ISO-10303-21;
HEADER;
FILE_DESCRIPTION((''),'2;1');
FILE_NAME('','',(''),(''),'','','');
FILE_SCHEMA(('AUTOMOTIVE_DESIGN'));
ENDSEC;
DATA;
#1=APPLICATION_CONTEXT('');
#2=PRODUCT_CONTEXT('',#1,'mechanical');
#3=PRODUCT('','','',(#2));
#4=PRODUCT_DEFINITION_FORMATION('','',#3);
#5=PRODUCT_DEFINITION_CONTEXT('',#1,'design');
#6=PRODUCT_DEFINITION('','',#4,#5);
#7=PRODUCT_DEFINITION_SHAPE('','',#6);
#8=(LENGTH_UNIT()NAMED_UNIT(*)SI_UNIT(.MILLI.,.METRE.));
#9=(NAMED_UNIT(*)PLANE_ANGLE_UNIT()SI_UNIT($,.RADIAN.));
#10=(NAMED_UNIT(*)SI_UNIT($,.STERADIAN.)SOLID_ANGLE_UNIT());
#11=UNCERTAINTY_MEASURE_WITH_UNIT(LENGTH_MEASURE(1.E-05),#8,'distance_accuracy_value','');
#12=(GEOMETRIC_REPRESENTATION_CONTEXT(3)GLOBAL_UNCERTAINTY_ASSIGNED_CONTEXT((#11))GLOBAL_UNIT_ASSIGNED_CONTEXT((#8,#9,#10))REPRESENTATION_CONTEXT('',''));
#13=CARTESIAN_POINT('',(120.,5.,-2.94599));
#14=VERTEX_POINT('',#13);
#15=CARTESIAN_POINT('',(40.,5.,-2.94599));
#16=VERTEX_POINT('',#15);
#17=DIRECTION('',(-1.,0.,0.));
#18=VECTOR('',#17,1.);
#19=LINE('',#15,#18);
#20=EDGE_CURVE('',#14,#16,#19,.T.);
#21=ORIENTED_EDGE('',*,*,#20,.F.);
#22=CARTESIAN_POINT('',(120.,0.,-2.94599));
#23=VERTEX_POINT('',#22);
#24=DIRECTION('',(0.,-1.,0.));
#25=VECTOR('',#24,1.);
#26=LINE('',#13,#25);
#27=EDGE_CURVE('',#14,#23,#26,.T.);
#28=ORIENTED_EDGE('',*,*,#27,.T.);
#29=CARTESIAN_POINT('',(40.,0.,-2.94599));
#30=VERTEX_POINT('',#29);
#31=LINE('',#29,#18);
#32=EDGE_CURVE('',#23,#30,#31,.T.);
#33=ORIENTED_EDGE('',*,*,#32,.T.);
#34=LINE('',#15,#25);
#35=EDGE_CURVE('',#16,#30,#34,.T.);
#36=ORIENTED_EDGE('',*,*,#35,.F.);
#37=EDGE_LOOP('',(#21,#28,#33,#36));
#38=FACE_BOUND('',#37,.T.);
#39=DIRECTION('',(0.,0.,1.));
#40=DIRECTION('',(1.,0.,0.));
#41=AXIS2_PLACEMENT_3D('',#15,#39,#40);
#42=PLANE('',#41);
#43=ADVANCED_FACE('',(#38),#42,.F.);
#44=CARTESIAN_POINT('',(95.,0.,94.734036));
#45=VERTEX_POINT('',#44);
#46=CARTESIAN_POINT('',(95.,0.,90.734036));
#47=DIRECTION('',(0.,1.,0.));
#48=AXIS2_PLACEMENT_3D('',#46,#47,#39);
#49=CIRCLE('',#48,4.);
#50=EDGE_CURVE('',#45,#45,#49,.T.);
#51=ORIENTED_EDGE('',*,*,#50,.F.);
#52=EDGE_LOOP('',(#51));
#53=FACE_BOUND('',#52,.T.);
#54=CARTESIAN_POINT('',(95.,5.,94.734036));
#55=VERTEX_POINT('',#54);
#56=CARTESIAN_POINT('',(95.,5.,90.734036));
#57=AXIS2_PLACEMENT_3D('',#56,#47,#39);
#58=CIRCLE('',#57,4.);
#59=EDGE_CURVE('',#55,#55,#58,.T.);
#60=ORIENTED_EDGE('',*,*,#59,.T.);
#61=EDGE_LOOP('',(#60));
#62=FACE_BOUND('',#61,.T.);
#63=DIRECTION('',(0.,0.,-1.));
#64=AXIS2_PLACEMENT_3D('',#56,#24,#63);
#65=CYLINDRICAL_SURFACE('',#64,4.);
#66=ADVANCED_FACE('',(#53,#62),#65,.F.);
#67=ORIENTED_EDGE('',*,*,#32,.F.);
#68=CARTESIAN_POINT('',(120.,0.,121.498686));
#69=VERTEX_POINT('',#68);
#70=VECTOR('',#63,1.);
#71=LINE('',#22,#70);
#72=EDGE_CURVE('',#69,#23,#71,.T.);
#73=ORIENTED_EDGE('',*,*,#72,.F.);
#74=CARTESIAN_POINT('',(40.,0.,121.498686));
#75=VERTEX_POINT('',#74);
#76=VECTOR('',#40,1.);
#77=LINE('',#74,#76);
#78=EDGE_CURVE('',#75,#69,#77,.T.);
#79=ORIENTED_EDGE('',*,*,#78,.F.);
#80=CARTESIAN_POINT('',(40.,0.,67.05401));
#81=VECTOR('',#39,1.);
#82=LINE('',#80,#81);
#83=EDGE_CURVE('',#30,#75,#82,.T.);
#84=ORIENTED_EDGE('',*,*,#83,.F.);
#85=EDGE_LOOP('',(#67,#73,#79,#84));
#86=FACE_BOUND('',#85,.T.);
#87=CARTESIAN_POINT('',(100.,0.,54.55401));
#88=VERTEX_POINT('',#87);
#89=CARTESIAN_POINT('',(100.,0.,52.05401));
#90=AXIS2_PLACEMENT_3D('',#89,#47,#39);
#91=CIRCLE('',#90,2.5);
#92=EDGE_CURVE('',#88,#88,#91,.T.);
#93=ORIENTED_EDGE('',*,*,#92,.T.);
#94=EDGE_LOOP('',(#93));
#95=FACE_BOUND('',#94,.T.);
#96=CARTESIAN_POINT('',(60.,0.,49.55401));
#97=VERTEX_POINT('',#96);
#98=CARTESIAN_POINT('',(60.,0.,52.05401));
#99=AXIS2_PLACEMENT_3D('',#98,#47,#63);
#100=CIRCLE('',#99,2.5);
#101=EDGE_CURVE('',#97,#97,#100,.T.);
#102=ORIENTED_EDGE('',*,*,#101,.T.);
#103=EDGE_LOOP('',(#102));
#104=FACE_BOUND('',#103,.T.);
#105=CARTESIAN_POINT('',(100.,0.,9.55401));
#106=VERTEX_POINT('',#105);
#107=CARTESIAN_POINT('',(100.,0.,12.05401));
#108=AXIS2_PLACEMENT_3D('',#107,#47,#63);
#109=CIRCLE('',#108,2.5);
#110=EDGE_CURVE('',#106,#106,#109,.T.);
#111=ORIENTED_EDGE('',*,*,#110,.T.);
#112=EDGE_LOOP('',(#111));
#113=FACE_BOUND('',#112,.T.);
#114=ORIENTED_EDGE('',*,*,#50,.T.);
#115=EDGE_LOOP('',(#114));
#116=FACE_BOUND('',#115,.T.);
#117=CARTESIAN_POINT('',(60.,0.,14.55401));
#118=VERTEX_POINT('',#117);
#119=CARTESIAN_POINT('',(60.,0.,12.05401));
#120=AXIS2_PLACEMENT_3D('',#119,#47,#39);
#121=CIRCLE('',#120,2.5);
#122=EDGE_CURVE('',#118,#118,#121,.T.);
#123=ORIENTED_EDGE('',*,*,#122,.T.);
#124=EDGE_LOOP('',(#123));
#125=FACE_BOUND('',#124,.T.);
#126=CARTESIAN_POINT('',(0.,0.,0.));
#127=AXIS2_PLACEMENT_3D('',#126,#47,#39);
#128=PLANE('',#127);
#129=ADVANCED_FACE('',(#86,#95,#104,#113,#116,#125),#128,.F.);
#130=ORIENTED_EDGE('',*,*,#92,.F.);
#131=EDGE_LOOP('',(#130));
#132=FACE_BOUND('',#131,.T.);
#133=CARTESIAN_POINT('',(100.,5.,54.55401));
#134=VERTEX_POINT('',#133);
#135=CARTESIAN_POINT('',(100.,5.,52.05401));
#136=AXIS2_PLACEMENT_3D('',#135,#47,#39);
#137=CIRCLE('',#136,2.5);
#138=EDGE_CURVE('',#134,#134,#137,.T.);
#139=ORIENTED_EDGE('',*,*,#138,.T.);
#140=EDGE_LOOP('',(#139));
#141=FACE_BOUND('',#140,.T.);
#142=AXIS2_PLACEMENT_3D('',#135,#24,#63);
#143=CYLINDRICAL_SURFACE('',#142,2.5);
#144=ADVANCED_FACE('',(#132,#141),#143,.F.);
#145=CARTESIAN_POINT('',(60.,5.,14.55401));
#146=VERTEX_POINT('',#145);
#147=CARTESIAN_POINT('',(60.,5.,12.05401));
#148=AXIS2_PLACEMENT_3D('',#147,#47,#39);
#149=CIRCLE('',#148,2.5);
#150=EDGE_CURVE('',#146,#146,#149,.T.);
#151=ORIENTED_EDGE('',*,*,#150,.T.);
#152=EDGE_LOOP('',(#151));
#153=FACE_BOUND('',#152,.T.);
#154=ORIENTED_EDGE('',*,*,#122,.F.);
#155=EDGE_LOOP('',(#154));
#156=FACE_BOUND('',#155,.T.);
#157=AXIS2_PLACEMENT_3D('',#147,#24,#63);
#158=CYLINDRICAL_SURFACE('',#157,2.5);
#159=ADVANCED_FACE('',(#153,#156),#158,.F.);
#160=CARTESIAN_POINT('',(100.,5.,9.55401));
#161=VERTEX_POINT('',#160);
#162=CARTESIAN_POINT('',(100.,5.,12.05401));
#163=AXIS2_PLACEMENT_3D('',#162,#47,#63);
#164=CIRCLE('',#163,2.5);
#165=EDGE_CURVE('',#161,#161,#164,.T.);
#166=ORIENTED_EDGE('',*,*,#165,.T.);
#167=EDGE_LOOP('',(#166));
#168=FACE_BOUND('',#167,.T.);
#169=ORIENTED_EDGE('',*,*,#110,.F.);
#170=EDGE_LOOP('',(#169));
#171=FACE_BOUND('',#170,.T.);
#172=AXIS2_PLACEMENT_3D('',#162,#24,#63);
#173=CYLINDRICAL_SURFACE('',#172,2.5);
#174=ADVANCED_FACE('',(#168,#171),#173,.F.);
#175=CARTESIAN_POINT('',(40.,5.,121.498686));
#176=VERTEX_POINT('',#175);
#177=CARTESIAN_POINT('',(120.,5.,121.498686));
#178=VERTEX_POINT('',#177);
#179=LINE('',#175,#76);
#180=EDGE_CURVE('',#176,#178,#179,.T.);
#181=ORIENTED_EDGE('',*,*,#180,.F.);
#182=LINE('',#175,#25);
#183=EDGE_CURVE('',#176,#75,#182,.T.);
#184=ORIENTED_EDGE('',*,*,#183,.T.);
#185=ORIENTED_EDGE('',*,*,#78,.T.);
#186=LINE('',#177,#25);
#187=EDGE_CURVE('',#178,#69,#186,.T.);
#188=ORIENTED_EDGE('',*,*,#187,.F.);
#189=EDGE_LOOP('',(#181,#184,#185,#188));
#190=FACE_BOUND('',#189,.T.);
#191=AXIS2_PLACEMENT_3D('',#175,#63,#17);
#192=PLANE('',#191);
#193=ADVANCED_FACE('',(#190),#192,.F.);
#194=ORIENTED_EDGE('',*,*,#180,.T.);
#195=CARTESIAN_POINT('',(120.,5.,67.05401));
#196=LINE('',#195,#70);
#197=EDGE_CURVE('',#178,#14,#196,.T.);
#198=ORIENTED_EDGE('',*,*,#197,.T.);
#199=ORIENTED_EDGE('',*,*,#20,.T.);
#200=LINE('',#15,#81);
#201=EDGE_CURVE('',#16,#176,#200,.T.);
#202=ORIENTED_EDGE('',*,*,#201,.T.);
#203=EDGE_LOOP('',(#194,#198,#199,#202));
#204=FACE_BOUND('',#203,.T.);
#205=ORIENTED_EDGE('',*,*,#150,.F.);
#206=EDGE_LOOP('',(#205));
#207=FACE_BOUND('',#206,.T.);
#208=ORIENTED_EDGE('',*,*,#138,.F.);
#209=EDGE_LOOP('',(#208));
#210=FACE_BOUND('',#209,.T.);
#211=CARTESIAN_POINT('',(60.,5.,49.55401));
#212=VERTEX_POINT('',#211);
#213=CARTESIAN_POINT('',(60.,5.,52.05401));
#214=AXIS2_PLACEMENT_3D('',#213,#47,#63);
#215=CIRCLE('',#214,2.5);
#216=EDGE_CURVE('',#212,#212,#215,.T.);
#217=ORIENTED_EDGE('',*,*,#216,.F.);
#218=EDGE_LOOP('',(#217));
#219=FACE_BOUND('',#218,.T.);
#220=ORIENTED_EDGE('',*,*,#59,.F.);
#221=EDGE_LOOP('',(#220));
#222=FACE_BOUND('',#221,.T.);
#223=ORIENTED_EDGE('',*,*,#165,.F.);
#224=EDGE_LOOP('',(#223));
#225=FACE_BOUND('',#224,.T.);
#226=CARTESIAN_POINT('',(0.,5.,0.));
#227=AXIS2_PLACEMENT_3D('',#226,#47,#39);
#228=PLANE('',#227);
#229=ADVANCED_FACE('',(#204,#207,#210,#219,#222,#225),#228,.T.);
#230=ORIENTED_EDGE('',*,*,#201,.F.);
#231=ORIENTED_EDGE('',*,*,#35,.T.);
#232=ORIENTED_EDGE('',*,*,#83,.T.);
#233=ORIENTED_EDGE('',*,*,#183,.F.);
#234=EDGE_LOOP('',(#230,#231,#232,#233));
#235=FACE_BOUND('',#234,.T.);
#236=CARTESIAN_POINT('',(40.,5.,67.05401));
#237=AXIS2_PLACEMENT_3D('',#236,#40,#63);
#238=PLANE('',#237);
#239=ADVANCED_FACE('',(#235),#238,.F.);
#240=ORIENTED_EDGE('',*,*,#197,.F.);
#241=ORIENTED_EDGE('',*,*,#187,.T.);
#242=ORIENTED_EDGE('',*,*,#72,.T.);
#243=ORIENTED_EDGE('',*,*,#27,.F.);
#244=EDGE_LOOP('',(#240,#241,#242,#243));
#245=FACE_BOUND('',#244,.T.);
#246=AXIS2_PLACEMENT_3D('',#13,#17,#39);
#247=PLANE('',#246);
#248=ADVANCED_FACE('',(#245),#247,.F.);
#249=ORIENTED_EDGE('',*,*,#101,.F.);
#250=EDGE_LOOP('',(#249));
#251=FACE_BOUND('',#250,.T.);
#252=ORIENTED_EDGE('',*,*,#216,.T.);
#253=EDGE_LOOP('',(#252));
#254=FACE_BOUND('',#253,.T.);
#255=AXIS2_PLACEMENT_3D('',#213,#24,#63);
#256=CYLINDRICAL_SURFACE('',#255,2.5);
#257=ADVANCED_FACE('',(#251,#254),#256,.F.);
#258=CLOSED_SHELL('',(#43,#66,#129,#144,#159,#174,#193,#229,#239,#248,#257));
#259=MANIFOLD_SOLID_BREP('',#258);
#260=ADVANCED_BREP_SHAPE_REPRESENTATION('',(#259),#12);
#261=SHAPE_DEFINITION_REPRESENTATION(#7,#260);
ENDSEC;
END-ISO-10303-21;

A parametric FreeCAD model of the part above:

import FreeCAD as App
import Part
import Sketcher

V = App.Vector
Q = App.Units.Quantity


def add_polygon(sketch, points):
    """Adds a closed chain of lines whose ends are joined by coincident constraints."""
    first, n = sketch.GeometryCount, len(points)
    for a, b in zip(points, points[1:] + points[:1]):
        sketch.addGeometry(Part.LineSegment(App.Vector(*a, 0), App.Vector(*b, 0)), False)
    for i in range(n):
        sketch.addConstraint(Sketcher.Constraint("Coincident", first + i, 2, first + (i + 1) % n, 1))

doc = App.newDocument("Part")
params = doc.addObject("Spreadsheet::Sheet", "Params")
for row, (alias, value) in enumerate([
    ("sketch1_diameter", "8 mm"),
    ("sketch1_diameter2", "5 mm"),
    ("sketch1_width", "80 mm"),
    ("pad1_length", "5 mm"),
], start=1):
    params.set(f"A{row}", alias)
    params.set(f"B{row}", "=" + value)
    params.setAlias(f"B{row}", alias)

body = doc.addObject("PartDesign::Body", "Body")

sketch1 = body.newObject("Sketcher::SketchObject", "Sketch")
sketch1.AttachmentSupport = (doc.getObject("XZ_Plane"), [""])
sketch1.MapMode = "FlatFace"
add_polygon(sketch1, [(120, -2.9), (40, -2.9), (40, 121.5), (120, 121.5)])
sketch1.addGeometry(Part.Circle(V(95, 90.7, 0), V(0, 0, 1), 4), False)
sketch1.addGeometry(Part.Circle(V(100, 52.1, 0), V(0, 0, 1), 2.5), False)
sketch1.addGeometry(Part.Circle(V(100, 12.1, 0), V(0, 0, 1), 2.5), False)
sketch1.addGeometry(Part.Circle(V(60, 52.1, 0), V(0, 0, 1), 2.5), False)
sketch1.addGeometry(Part.Circle(V(60, 12.1, 0), V(0, 0, 1), 2.5), False)
sketch1.addConstraint(Sketcher.Constraint("Horizontal", 0))
sketch1.addConstraint(Sketcher.Constraint("Vertical", 1))
sketch1.addConstraint(Sketcher.Constraint("Horizontal", 2))
sketch1.addConstraint(Sketcher.Constraint("Vertical", 3))
sketch1.addConstraint(Sketcher.Constraint("Equal", 5, 6))
sketch1.addConstraint(Sketcher.Constraint("Equal", 6, 7))
sketch1.addConstraint(Sketcher.Constraint("Equal", 7, 8))
sketch1.addConstraint(Sketcher.Constraint("Horizontal", 5, 3, 7, 3))
sketch1.addConstraint(Sketcher.Constraint("Horizontal", 6, 3, 8, 3))
sketch1.addConstraint(Sketcher.Constraint("Vertical", 5, 3, 6, 3))
sketch1.addConstraint(Sketcher.Constraint("Vertical", 7, 3, 8, 3))
sketch1.addConstraint(Sketcher.Constraint("Diameter", 4, Q("8 mm")))
sketch1.addConstraint(Sketcher.Constraint("Diameter", 5, Q("5 mm")))
sketch1.addConstraint(Sketcher.Constraint("DistanceX", 0, 2, 0, 1, Q("80 mm")))
sketch1.addConstraint(Sketcher.Constraint("DistanceX", -1, 1, 4, 3, Q("95 mm")))
sketch1.addConstraint(Sketcher.Constraint("DistanceX", -1, 1, 5, 3, Q("100 mm")))
sketch1.addConstraint(Sketcher.Constraint("DistanceX", -1, 1, 7, 3, Q("60 mm")))
sketch1.addConstraint(Sketcher.Constraint("DistanceX", -1, 1, 0, 2, Q("40 mm")))
sketch1.addConstraint(Sketcher.Constraint("DistanceY", 6, 3, 5, 3, Q("40 mm")))
sketch1.addConstraint(Sketcher.Constraint("DistanceY", 0, 2, 8, 3, Q("15 mm")))
sketch1.addConstraint(Sketcher.Constraint("DistanceY", 1, 1, 1, 2, Q("124.444676 mm")))
sketch1.addConstraint(Sketcher.Constraint("DistanceY", -1, 1, 5, 3, Q("52.05401 mm")))
sketch1.addConstraint(Sketcher.Constraint("DistanceY", 4, 3, 1, 2, Q("30.764649 mm")))
sketch1.setExpression("Constraints[15]", "Params.sketch1_diameter")
sketch1.setExpression("Constraints[16]", "Params.sketch1_diameter2")
sketch1.setExpression("Constraints[17]", "Params.sketch1_width")
pad1 = body.newObject("PartDesign::Pad", "Pad")
pad1.Profile = sketch1
pad1.setExpression("Length", "Params.pad1_length")
pad1.Reversed = True

doc.recompute()
